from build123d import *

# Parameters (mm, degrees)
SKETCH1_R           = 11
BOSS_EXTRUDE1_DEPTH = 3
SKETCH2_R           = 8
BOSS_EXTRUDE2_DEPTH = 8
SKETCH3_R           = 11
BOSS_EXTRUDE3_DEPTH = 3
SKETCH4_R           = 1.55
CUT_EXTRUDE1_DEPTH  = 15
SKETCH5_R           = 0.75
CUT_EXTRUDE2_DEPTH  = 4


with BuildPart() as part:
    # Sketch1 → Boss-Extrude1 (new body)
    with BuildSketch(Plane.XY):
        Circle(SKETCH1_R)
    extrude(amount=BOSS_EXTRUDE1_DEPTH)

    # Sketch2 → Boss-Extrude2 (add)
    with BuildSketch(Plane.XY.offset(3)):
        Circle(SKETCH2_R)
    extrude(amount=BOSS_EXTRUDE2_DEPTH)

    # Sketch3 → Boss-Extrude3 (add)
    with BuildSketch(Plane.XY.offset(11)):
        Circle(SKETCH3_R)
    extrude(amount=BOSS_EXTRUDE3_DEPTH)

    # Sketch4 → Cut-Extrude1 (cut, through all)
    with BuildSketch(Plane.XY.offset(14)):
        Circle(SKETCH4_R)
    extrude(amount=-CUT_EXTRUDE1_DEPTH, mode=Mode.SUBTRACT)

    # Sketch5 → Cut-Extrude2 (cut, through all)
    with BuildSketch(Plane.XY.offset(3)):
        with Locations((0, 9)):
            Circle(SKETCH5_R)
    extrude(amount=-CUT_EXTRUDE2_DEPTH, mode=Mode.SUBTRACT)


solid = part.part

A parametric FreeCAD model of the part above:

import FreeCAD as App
import Part
import Sketcher
from FreeCAD import Vector

doc = App.newDocument("Part")
body = doc.addObject("PartDesign::Body", "Body")

sketch1 = body.newObject("Sketcher::SketchObject", "Sketch")
sketch1.AttachmentSupport = (doc.getObject("XY_Plane"), [""])
sketch1.MapMode = "FlatFace"
sketch1.addGeometry(Part.Circle(Vector(0, 0, 0), Vector(0, 0, 1), 11), False)
sketch1.addConstraint([
    Sketcher.Constraint("Coincident", 0, 3, -1, 1),
    Sketcher.Constraint("Diameter", 0, 22.0),
])
pad1 = body.newObject("PartDesign::Pad", "Pad")
pad1.Profile = sketch1
pad1.Length = 3

sketch2 = body.newObject("Sketcher::SketchObject", "Sketch001")
sketch2.AttachmentSupport = (doc.getObject("XY_Plane"), [""])
sketch2.MapMode = "FlatFace"
sketch2.AttachmentOffset = App.Placement(Vector(0, 0, 3), App.Rotation())
sketch2.addGeometry(Part.Circle(Vector(0, 0, 0), Vector(0, 0, 1), 8), False)
sketch2.addConstraint([
    Sketcher.Constraint("Coincident", 0, 3, -1, 1),
    Sketcher.Constraint("Diameter", 0, 16.0),
])
pad2 = body.newObject("PartDesign::Pad", "Pad001")
pad2.Profile = sketch2
pad2.Length = 8

sketch3 = body.newObject("Sketcher::SketchObject", "Sketch002")
sketch3.AttachmentSupport = (doc.getObject("XY_Plane"), [""])
sketch3.MapMode = "FlatFace"
sketch3.AttachmentOffset = App.Placement(Vector(0, 0, 11), App.Rotation())
sketch3.addGeometry(Part.Circle(Vector(0, 0, 0), Vector(0, 0, 1), 11), False)
sketch3.addConstraint([
    Sketcher.Constraint("Coincident", 0, 3, -1, 1),
    Sketcher.Constraint("Diameter", 0, 22.0),
])
pad3 = body.newObject("PartDesign::Pad", "Pad002")
pad3.Profile = sketch3
pad3.Length = 3

sketch4 = body.newObject("Sketcher::SketchObject", "Sketch003")
sketch4.AttachmentSupport = (doc.getObject("XY_Plane"), [""])
sketch4.MapMode = "FlatFace"
sketch4.AttachmentOffset = App.Placement(Vector(0, 0, 14), App.Rotation())
sketch4.addGeometry(Part.Circle(Vector(0, 0, 0), Vector(0, 0, 1), 1.6), False)
sketch4.addConstraint([
    Sketcher.Constraint("Coincident", 0, 3, -1, 1),
    Sketcher.Constraint("Diameter", 0, 3.1),
])
pocket1 = body.newObject("PartDesign::Pocket", "Pocket")
pocket1.Profile = sketch4
pocket1.Type = "ThroughAll"

sketch5 = body.newObject("Sketcher::SketchObject", "Sketch004")
sketch5.AttachmentSupport = (doc.getObject("XY_Plane"), [""])
sketch5.MapMode = "FlatFace"
sketch5.AttachmentOffset = App.Placement(Vector(0, 0, 3), App.Rotation())
sketch5.addGeometry(Part.Circle(Vector(0, 9, 0), Vector(0, 0, 1), 0.8), False)
sketch5.addConstraint([
    Sketcher.Constraint("PointOnObject", 0, 3, -2),
    Sketcher.Constraint("Diameter", 0, 1.5),
    Sketcher.Constraint("DistanceY", -1, 1, 0, 3, 9.0),
])
pocket2 = body.newObject("PartDesign::Pocket", "Pocket001")
pocket2.Profile = sketch5
pocket2.Type = "ThroughAll"

doc.recompute()
